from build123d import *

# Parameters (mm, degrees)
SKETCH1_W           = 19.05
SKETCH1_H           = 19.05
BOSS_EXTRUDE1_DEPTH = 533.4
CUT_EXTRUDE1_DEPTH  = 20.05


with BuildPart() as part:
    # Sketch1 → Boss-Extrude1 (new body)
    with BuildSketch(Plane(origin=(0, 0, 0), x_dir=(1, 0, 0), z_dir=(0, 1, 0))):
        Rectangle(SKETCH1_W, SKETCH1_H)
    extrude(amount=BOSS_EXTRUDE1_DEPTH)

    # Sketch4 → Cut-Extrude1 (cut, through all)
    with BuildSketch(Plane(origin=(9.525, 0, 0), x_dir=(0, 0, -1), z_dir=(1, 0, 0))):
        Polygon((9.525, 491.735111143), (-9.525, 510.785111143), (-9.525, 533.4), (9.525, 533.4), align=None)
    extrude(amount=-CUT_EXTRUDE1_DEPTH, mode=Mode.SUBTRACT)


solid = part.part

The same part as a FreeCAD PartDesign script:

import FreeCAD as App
import Part
import Sketcher
from FreeCAD import Vector
Q = App.Units.Quantity

doc = App.newDocument("Part")
body = doc.addObject("PartDesign::Body", "Body")

sketch1 = body.newObject("Sketcher::SketchObject", "Sketch")
sketch1.AttachmentSupport = (doc.getObject("XZ_Plane"), [""])
sketch1.MapMode = "FlatFace"
sketch1.addGeometry([
    Part.LineSegment(Vector(-9.525, -9.525, 0), Vector(-9.525, 9.525, 0)),
    Part.LineSegment(Vector(-9.525, 9.525, 0), Vector(9.525, 9.525, 0)),
    Part.LineSegment(Vector(9.525, 9.525, 0), Vector(9.525, -9.525, 0)),
    Part.LineSegment(Vector(9.525, -9.525, 0), Vector(-9.525, -9.525, 0)),
], False)
sketch1.addConstraint([
    Sketcher.Constraint("Coincident", 0, 2, 1, 1),
    Sketcher.Constraint("Coincident", 1, 2, 2, 1),
    Sketcher.Constraint("Coincident", 2, 2, 3, 1),
    Sketcher.Constraint("Coincident", 3, 2, 0, 1),
    Sketcher.Constraint("Vertical", 0),
    Sketcher.Constraint("Horizontal", 1),
    Sketcher.Constraint("Vertical", 2),
    Sketcher.Constraint("Horizontal", 3),
    Sketcher.Constraint("Symmetric", 0, 2, 2, 2, -1, 1),
    Sketcher.Constraint("Equal", 3, 0),
    Sketcher.Constraint("DistanceX", 1, 1, 1, 2, Q("0.75 in")),
])
pad1 = body.newObject("PartDesign::Pad", "Pad")
pad1.Profile = sketch1
pad1.Length = Q("21 in")
pad1.Reversed = True

sketch2 = body.newObject("Sketcher::SketchObject", "Sketch001")
sketch2.AttachmentSupport = (doc.getObject("YZ_Plane"), [""])
sketch2.MapMode = "FlatFace"
sketch2.AttachmentOffset = App.Placement(Vector(0, 0, 0.375 * 25.4), App.Rotation())
sketch2.addGeometry([
    Part.LineSegment(Vector(510.785111, 9.525, 0), Vector(491.735111, -9.525, 0)),
    Part.LineSegment(Vector(491.735111, -9.525, 0), Vector(533.4, -9.525, 0)),
    Part.LineSegment(Vector(533.4, -9.525, 0), Vector(533.4, 9.525, 0)),
    Part.LineSegment(Vector(533.4, 9.525, 0), Vector(510.785111, 9.525, 0)),
], False)
sketch2.addConstraint([
    Sketcher.Constraint("Coincident", 0, 2, 1, 1),
    Sketcher.Constraint("Coincident", 1, 2, 2, 1),
    Sketcher.Constraint("Coincident", 2, 2, 3, 1),
    Sketcher.Constraint("Coincident", 3, 2, 0, 1),
    Sketcher.Constraint("Horizontal", 1),
    Sketcher.Constraint("Vertical", 2),
    Sketcher.Constraint("Horizontal", 3),
    Sketcher.Constraint("DistanceX", -1, 1, 1, 2, Q("21 in")),
    Sketcher.Constraint("Angle", 0, Q("-135 deg")),
    Sketcher.Constraint("DistanceY", 2, 1, 2, 2, Q("0.75 in")),
    Sketcher.Constraint("DistanceY", 0, 2, -1, 1, Q("0.375 in")),
    Sketcher.Constraint("DistanceX", 1, 1, 1, 2, Q("41.664889 mm")),
])
pocket1 = body.newObject("PartDesign::Pocket", "Pocket")
pocket1.Profile = sketch2
pocket1.Type = "ThroughAll"

doc.recompute()
